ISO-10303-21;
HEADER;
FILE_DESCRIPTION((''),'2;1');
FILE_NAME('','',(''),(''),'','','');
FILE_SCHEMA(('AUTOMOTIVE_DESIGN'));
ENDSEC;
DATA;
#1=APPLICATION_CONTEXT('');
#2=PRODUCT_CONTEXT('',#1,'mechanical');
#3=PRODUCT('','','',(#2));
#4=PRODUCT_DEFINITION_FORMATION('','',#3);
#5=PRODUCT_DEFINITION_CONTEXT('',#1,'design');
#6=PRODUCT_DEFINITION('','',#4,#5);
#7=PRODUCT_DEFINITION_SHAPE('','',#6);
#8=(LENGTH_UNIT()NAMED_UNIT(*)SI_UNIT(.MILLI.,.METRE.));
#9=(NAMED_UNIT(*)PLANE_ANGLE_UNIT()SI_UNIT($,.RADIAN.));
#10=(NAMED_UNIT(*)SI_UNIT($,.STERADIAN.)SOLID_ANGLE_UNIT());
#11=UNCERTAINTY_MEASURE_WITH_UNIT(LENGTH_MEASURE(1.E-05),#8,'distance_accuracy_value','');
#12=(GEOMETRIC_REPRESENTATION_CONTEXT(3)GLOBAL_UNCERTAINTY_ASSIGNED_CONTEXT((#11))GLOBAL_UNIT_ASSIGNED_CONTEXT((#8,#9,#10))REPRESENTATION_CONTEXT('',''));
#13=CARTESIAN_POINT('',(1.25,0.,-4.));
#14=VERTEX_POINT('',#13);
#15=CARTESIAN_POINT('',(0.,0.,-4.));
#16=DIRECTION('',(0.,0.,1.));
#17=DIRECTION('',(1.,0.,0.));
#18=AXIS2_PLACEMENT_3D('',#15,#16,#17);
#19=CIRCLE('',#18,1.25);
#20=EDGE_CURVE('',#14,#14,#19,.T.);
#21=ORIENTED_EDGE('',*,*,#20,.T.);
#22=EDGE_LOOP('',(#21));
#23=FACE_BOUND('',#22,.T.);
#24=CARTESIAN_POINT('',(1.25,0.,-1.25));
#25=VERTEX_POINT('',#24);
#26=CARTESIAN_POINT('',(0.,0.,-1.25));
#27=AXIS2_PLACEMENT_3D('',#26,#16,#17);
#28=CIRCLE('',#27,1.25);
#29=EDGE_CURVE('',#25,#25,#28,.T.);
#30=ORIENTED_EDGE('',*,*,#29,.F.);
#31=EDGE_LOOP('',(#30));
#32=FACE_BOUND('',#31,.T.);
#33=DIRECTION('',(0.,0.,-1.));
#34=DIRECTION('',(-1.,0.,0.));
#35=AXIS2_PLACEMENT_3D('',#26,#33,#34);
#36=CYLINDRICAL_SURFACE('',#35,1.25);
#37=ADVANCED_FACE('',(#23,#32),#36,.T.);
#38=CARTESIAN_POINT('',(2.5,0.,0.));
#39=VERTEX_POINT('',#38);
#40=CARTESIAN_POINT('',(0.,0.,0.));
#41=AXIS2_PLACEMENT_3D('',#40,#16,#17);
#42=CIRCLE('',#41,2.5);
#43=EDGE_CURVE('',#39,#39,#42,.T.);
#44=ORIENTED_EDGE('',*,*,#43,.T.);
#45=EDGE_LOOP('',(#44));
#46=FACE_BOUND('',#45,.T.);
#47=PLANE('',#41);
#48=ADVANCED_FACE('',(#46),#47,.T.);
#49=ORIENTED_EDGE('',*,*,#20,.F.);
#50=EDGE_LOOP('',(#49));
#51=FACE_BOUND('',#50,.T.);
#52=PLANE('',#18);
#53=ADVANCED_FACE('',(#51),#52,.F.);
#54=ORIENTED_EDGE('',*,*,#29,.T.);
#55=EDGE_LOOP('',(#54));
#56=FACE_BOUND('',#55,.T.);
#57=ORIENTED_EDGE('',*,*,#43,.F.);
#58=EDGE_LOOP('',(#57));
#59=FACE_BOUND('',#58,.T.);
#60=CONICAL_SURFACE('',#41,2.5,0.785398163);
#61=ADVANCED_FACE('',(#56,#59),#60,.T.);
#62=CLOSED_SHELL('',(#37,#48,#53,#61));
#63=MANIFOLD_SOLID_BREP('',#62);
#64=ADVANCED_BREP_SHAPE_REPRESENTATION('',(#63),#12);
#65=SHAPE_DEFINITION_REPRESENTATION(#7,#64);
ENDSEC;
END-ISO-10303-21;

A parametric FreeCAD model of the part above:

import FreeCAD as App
import Part
import Sketcher

V = App.Vector
Q = App.Units.Quantity


def faces_at(feature, points):
    """Names of the faces that lie closest to the given points."""
    faces = feature.Shape.Faces
    near = lambda p: min(range(len(faces)), key=lambda i: faces[i].distToShape(Part.Vertex(*p))[0])
    return sorted({f"Face{near(p) + 1}" for p in points})

doc = App.newDocument("Part")
body = doc.addObject("PartDesign::Body", "Body")

sketch1 = body.newObject("Sketcher::SketchObject", "Sketch")
sketch1.AttachmentSupport = (doc.getObject("XY_Plane"), [""])
sketch1.MapMode = "FlatFace"
sketch1.addGeometry(Part.Circle(V(0, 0, 0), V(0, 0, 1), 2.5), False)
sketch1.addConstraint(Sketcher.Constraint("Coincident", 0, 3, -1, 1))
sketch1.addConstraint(Sketcher.Constraint("Diameter", 0, Q("5 mm")))
pad1 = body.newObject("PartDesign::Pad", "Pad")
pad1.Profile = sketch1
pad1.Length = 1.25
pad1.Reversed = True
doc.recompute()

draft = body.newObject("PartDesign::Draft", "Draft")
draft.Base = (pad1, faces_at(pad1, [(-2.5, 0, -0.625)]))
draft.NeutralPlane = (doc.getObject("XY_Plane"), [""])
draft.Angle = 45
draft.Reversed = True

sketch2 = body.newObject("Sketcher::SketchObject", "Sketch001")
sketch2.AttachmentSupport = (doc.getObject("XY_Plane"), [""])
sketch2.MapMode = "FlatFace"
sketch2.AttachmentOffset = App.Placement(V(0, 0, -4), App.Rotation())
sketch2.addGeometry(Part.Circle(V(0, 0, 0), V(0, 0, 1), 1.2), False)
sketch2.addConstraint(Sketcher.Constraint("Coincident", 0, 3, -1, 1))
sketch2.addConstraint(Sketcher.Constraint("Diameter", 0, Q("2.5 mm")))
pad2 = body.newObject("PartDesign::Pad", "Pad001")
pad2.Profile = sketch2
pad2.Length = 2.75

doc.recompute()
